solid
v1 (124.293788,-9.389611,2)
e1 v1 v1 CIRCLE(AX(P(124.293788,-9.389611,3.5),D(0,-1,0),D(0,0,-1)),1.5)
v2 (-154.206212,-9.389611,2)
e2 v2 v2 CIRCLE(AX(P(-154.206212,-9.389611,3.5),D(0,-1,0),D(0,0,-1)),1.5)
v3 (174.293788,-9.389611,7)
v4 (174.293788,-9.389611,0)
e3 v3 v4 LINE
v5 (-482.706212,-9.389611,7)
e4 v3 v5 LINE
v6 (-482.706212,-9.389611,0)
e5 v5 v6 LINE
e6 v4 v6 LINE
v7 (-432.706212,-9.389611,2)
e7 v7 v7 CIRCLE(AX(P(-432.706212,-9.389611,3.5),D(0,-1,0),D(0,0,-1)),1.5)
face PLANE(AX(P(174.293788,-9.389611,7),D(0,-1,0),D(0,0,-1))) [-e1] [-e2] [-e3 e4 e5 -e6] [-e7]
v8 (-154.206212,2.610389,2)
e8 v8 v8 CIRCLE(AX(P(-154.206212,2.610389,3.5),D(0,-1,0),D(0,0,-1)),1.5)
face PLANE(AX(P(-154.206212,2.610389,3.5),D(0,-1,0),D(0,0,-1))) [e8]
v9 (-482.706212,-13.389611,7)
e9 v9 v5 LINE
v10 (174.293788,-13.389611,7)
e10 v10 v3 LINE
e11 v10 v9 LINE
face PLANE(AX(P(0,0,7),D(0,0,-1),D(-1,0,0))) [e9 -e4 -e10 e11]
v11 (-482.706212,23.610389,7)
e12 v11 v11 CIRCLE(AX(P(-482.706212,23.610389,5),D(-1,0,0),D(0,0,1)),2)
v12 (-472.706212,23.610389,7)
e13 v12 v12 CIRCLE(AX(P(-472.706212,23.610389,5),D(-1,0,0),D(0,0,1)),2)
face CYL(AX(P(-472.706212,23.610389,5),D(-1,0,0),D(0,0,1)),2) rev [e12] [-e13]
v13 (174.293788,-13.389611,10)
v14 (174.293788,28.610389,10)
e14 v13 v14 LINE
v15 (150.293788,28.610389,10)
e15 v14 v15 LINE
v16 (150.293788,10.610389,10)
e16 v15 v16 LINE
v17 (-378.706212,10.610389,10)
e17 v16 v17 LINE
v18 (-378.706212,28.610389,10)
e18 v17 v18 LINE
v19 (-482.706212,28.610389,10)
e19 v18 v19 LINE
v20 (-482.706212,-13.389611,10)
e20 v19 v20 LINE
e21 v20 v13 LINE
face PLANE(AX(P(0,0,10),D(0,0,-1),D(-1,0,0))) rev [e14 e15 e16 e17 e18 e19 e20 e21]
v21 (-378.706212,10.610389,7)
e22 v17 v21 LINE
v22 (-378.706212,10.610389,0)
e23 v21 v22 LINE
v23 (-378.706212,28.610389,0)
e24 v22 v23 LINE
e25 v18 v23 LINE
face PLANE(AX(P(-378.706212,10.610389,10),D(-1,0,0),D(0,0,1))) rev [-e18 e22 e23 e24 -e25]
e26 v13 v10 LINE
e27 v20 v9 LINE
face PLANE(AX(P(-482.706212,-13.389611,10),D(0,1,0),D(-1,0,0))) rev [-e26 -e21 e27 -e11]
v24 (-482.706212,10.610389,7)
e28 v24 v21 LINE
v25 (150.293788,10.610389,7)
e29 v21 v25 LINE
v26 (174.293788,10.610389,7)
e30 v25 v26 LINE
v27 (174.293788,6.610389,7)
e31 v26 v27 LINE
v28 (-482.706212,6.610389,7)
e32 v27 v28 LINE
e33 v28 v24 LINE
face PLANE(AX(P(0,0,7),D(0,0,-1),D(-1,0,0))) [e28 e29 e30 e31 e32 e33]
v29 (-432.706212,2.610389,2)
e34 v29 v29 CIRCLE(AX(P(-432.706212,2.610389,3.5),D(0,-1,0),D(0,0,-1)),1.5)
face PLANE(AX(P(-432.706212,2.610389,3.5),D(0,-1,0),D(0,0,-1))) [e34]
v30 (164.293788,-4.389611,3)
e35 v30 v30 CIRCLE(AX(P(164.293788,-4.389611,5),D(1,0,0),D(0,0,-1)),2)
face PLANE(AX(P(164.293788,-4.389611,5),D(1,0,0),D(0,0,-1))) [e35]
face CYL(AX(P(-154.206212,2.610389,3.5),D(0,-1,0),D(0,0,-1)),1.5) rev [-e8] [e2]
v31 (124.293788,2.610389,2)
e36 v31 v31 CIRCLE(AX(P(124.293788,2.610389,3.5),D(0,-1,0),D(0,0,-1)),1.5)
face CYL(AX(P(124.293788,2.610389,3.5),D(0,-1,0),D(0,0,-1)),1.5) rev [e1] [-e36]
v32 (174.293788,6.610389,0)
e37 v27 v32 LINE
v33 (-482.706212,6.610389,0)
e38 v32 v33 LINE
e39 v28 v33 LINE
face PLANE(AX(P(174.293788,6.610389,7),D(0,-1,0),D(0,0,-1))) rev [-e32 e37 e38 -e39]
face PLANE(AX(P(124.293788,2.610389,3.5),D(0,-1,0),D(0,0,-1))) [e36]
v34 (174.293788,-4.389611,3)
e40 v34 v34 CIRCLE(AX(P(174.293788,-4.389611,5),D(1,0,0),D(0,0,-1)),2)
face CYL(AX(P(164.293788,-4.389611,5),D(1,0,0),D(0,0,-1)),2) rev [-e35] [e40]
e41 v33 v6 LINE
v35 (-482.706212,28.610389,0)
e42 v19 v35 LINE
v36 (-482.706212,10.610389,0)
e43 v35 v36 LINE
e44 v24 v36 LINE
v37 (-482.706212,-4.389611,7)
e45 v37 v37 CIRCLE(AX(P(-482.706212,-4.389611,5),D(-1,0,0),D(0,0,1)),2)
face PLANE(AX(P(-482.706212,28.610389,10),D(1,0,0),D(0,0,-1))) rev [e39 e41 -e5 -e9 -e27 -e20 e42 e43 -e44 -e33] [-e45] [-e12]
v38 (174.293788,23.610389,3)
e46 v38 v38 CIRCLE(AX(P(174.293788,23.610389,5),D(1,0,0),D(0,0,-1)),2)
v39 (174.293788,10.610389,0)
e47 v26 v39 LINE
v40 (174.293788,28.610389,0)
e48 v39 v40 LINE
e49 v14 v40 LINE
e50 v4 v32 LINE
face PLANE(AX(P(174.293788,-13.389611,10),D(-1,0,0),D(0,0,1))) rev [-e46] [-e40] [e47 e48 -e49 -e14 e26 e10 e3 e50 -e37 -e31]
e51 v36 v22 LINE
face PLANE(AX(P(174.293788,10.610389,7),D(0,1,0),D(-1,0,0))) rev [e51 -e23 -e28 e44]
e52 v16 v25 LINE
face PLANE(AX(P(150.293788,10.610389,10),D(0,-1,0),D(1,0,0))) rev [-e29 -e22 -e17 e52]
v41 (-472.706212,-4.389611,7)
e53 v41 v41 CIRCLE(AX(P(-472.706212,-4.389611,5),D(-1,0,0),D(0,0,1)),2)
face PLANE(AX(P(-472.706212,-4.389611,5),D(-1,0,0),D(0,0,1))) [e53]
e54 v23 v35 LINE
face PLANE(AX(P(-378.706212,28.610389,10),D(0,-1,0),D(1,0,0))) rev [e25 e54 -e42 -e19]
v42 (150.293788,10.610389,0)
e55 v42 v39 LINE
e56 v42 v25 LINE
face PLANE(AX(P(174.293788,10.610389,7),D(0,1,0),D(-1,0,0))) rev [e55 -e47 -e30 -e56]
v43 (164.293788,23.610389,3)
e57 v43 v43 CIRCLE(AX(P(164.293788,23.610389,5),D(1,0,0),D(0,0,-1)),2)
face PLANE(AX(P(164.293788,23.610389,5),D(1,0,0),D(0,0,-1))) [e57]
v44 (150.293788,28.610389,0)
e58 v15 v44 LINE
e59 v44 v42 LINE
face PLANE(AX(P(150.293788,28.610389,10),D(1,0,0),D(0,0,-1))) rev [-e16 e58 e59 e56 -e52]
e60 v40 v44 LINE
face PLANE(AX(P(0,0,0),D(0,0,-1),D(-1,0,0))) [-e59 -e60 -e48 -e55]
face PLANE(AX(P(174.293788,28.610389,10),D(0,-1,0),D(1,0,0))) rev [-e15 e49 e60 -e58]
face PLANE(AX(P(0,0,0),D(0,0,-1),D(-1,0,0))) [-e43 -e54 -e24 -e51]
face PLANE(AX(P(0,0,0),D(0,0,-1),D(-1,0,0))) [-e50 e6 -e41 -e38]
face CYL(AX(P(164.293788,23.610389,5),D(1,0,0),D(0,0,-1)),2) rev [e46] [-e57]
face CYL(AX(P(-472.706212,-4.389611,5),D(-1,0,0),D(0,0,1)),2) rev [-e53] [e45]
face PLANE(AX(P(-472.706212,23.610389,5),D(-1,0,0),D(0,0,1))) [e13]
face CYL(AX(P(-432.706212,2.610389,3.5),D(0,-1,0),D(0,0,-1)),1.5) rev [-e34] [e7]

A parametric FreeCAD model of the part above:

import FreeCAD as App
import Part
import Sketcher

V = App.Vector
Q = App.Units.Quantity


def add_polygon(sketch, points):
    """Adds a closed chain of lines whose ends are joined by coincident constraints."""
    first, n = sketch.GeometryCount, len(points)
    for a, b in zip(points, points[1:] + points[:1]):
        sketch.addGeometry(Part.LineSegment(App.Vector(*a, 0), App.Vector(*b, 0)), False)
    for i in range(n):
        sketch.addConstraint(Sketcher.Constraint("Coincident", first + i, 2, first + (i + 1) % n, 1))

doc = App.newDocument("Part")
body = doc.addObject("PartDesign::Body", "Body")

sketch1 = doc.addObject("Sketcher::SketchObject", "Sketch")
body.addObject(sketch1)
sketch1.AttachmentSupport = (doc.XY_Plane, [""])
sketch1.MapMode = "FlatFace"
add_polygon(sketch1, [(-483, 29), (-483, -13), (174, -13), (174, 29), (150, 29), (150, 11), (-379, 11), (-379, 29)])
sketch1.addConstraint([
    Sketcher.Constraint("Vertical", 0),
    Sketcher.Constraint("Horizontal", 1),
    Sketcher.Constraint("Vertical", 2),
    Sketcher.Constraint("Horizontal", 3),
    Sketcher.Constraint("Vertical", 4),
    Sketcher.Constraint("Horizontal", 5),
    Sketcher.Constraint("Vertical", 6),
    Sketcher.Constraint("Horizontal", 7),
    Sketcher.Constraint("Horizontal", 3, 2, 6, 2),
    Sketcher.Constraint("DistanceX", 1, 1, 1, 2, Q("657 mm")),
    Sketcher.Constraint("DistanceX", 3, 2, 3, 1, Q("24 mm")),
    Sketcher.Constraint("DistanceX", 5, 2, 5, 1, Q("529 mm")),
    Sketcher.Constraint("DistanceY", 0, 2, 0, 1, Q("42 mm")),
    Sketcher.Constraint("DistanceY", 4, 2, 4, 1, Q("18 mm")),
    Sketcher.Constraint("DistanceY", 0, 2, -1, 1, Q("13.389611 mm")),
    Sketcher.Constraint("DistanceX", 0, 2, -1, 1, Q("482.706212 mm")),
])
pad1 = doc.addObject("PartDesign::Pad", "Pad")
body.addObject(pad1)
pad1.Profile = sketch1
pad1.Length = 10

sketch2 = doc.addObject("Sketcher::SketchObject", "Sketch001")
body.addObject(sketch2)
sketch2.AttachmentSupport = (doc.XY_Plane, [""])
sketch2.MapMode = "FlatFace"
add_polygon(sketch2, [(174.3, 10.6), (174.3, 6.6), (-482.7, 6.6), (-482.7, 10.6)])
sketch2.addConstraint([
    Sketcher.Constraint("Vertical", 0),
    Sketcher.Constraint("Horizontal", 1),
    Sketcher.Constraint("Vertical", 2),
    Sketcher.Constraint("Horizontal", 3),
    Sketcher.Constraint("DistanceX", 1, 2, 1, 1, Q("657 mm")),
    Sketcher.Constraint("DistanceY", 0, 2, 0, 1, Q("4 mm")),
    Sketcher.Constraint("DistanceY", -1, 1, 0, 2, Q("6.610389 mm")),
    Sketcher.Constraint("DistanceX", -1, 1, 0, 2, Q("174.293788 mm")),
])
pocket1 = doc.addObject("PartDesign::Pocket", "Pocket")
body.addObject(pocket1)
pocket1.Profile = sketch2
pocket1.Length = 7
pocket1.Reversed = True

sketch3 = doc.addObject("Sketcher::SketchObject", "Sketch002")
body.addObject(sketch3)
sketch3.AttachmentSupport = (doc.XY_Plane, [""])
sketch3.MapMode = "FlatFace"
add_polygon(sketch3, [(174.3, -9.4), (174.3, -13.4), (-482.7, -13.4), (-482.7, -9.4)])
sketch3.addConstraint([
    Sketcher.Constraint("Vertical", 0),
    Sketcher.Constraint("Horizontal", 1),
    Sketcher.Constraint("Vertical", 2),
    Sketcher.Constraint("Horizontal", 3),
    Sketcher.Constraint("DistanceX", 1, 2, 1, 1, Q("657 mm")),
    Sketcher.Constraint("DistanceY", 0, 2, 0, 1, Q("4 mm")),
    Sketcher.Constraint("DistanceY", 0, 2, -1, 1, Q("13.389611 mm")),
    Sketcher.Constraint("DistanceX", -1, 1, 0, 2, Q("174.293788 mm")),
])
pocket2 = doc.addObject("PartDesign::Pocket", "Pocket001")
body.addObject(pocket2)
pocket2.Profile = sketch3
pocket2.Length = 7
pocket2.Reversed = True

sketch4 = doc.addObject("Sketcher::SketchObject", "Sketch003")
body.addObject(sketch4)
sketch4.AttachmentSupport = (doc.XZ_Plane, [""])
sketch4.MapMode = "FlatFace"
sketch4.AttachmentOffset = App.Placement(V(0, 0, 9.389611), App.Rotation())
sketch4.addGeometry([
    Part.Circle(V(-432.7, 3.5, 0), V(0, 0, 1), 1.5),
    Part.Circle(V(-154.2, 3.5, 0), V(0, 0, 1), 1.5),
    Part.Circle(V(124.3, 3.5, 0), V(0, 0, 1), 1.5),
], False)
sketch4.addConstraint([
    Sketcher.Constraint("Equal", 0, 1),
    Sketcher.Constraint("Equal", 1, 2),
    Sketcher.Constraint("Horizontal", 0, 3, 1, 3),
    Sketcher.Constraint("Horizontal", 1, 3, 2, 3),
    Sketcher.Constraint("Diameter", 0, Q("3 mm")),
    Sketcher.Constraint("DistanceX", 0, 3, 2, 3, Q("557 mm")),
    Sketcher.Constraint("DistanceY", -1, 1, 0, 3, Q("3.5 mm")),
    Sketcher.Constraint("DistanceX", 0, 3, 1, 3, Q("278.5 mm")),
    Sketcher.Constraint("DistanceX", 0, 3, -1, 1, Q("432.706212 mm")),
])
pocket3 = doc.addObject("PartDesign::Pocket", "Pocket002")
body.addObject(pocket3)
pocket3.Profile = sketch4
pocket3.Length = 12

sketch5 = doc.addObject("Sketcher::SketchObject", "Sketch004")
body.addObject(sketch5)
sketch5.AttachmentSupport = (doc.YZ_Plane, [""])
sketch5.MapMode = "FlatFace"
sketch5.AttachmentOffset = App.Placement(V(0, 0, 174.293788), App.Rotation())
sketch5.addGeometry([
    Part.Circle(V(23.6, 5, 0), V(0, 0, 1), 2),
    Part.Circle(V(-4.4, 5, 0), V(0, 0, 1), 2),
], False)
sketch5.addConstraint([
    Sketcher.Constraint("Equal", 0, 1),
    Sketcher.Constraint("Horizontal", 0, 3, 1, 3),
    Sketcher.Constraint("Diameter", 0, Q("4 mm")),
    Sketcher.Constraint("DistanceY", -1, 1, 0, 3, Q("5 mm")),
    Sketcher.Constraint("DistanceX", 1, 3, 0, 3, Q("28 mm")),
    Sketcher.Constraint("DistanceX", -1, 1, 0, 3, Q("23.610389 mm")),
])
pocket4 = doc.addObject("PartDesign::Pocket", "Pocket003")
body.addObject(pocket4)
pocket4.Profile = sketch5
pocket4.Length = 10

sketch6 = doc.addObject("Sketcher::SketchObject", "Sketch005")
body.addObject(sketch6)
sketch6.AttachmentSupport = (doc.YZ_Plane, [""])
sketch6.MapMode = "FlatFace"
sketch6.AttachmentOffset = App.Placement(V(0, 0, -472.706212), App.Rotation())
sketch6.addGeometry([
    Part.Circle(V(23.6, 5, 0), V(0, 0, 1), 2),
    Part.Circle(V(-4.4, 5, 0), V(0, 0, 1), 2),
], False)
sketch6.addConstraint([
    Sketcher.Constraint("Equal", 0, 1),
    Sketcher.Constraint("Horizontal", 0, 3, 1, 3),
    Sketcher.Constraint("Diameter", 0, Q("4 mm")),
    Sketcher.Constraint("DistanceY", -1, 1, 0, 3, Q("5 mm")),
    Sketcher.Constraint("DistanceX", 1, 3, 0, 3, Q("28 mm")),
    Sketcher.Constraint("DistanceX", -1, 1, 0, 3, Q("23.610389 mm")),
])
pocket5 = doc.addObject("PartDesign::Pocket", "Pocket004")
body.addObject(pocket5)
pocket5.Profile = sketch6
pocket5.Length = 10

doc.recompute()
